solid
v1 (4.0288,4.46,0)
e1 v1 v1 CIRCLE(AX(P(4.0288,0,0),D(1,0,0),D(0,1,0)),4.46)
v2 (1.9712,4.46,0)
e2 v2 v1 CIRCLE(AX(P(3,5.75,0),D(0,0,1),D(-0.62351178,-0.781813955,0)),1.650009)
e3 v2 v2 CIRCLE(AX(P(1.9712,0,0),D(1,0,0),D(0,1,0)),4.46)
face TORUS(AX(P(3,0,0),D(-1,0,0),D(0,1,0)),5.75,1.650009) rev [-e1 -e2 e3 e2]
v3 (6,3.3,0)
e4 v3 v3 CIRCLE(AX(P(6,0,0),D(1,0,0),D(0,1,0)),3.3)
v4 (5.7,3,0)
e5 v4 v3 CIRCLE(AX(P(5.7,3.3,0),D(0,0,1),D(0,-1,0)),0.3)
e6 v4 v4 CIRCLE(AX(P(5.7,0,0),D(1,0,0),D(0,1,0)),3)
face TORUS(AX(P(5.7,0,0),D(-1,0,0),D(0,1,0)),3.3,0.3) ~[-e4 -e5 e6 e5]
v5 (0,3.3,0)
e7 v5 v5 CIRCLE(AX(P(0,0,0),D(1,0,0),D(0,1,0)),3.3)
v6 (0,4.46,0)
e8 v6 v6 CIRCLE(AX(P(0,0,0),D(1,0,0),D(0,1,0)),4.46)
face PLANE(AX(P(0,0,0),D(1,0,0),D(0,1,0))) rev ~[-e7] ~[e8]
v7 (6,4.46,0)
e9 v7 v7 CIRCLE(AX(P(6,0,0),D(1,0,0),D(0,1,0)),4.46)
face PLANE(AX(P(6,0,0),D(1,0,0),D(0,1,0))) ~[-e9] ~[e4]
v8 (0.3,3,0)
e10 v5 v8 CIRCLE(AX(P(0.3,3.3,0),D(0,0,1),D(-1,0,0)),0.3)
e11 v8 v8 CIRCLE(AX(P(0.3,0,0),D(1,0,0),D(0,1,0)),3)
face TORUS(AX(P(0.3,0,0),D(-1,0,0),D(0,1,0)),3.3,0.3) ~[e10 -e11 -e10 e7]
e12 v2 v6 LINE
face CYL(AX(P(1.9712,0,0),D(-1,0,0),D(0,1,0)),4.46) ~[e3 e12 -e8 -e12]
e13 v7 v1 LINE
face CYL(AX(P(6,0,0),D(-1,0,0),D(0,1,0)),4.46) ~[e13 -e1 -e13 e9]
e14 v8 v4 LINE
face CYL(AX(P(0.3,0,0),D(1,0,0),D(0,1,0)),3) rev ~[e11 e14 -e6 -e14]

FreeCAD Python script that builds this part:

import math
import FreeCAD as App
import Part
import Sketcher
Q = App.Units.Quantity

doc = App.newDocument("Part")
body = doc.addObject("PartDesign::Body", "Body")

# Sketch on XY plane
sketch1 = body.newObject("Sketcher::SketchObject", "Sketch")
sketch1.AttachmentSupport = (doc.getObject("XY_Plane"), [""])
sketch1.MapMode = "FlatFace"
sketch1.addGeometry([
    Part.LineSegment(App.Vector(0, 4.46, 0), App.Vector(0, 3.3, 0)),  # 0
    Part.ArcOfCircle(Part.Circle(App.Vector(0.3, 3.3, 0), App.Vector(0, 0, 1), 0.3), math.radians(180), math.radians(270)),  # 1
    Part.LineSegment(App.Vector(0.3, 3, 0), App.Vector(5.7, 3, 0)),  # 2
    Part.ArcOfCircle(Part.Circle(App.Vector(5.7, 3.3, 0), App.Vector(0, 0, 1), 0.3), math.radians(-90), math.radians(0)),  # 3
    Part.LineSegment(App.Vector(6, 3.3, 0), App.Vector(6, 4.46, 0)),  # 4
    Part.LineSegment(App.Vector(6, 4.46, 0), App.Vector(4.03, 4.46, 0)),  # 5
    Part.ArcOfCircle(Part.Circle(App.Vector(3, 5.75, 0), App.Vector(0, 0, 1), 1.65), math.radians(-129), math.radians(-51)),  # 6
    Part.LineSegment(App.Vector(1.97, 4.46, 0), App.Vector(0, 4.46, 0)),  # 7
], False)
sketch1.addConstraint([
    Sketcher.Constraint("Tangent", 0, 2, 1, 1),
    Sketcher.Constraint("Tangent", 1, 2, 2, 1),
    Sketcher.Constraint("Tangent", 2, 2, 3, 1),
    Sketcher.Constraint("Tangent", 3, 2, 4, 1),
    Sketcher.Constraint("Coincident", 4, 2, 5, 1),
    Sketcher.Constraint("Coincident", 5, 2, 6, 2),
    Sketcher.Constraint("Coincident", 6, 1, 7, 1),
    Sketcher.Constraint("Coincident", 7, 2, 0, 1),
    Sketcher.Constraint("Vertical", 0),
    Sketcher.Constraint("Horizontal", 2),
    Sketcher.Constraint("Vertical", 4),
    Sketcher.Constraint("Horizontal", 5),
    Sketcher.Constraint("Horizontal", 7),
    Sketcher.Constraint("Equal", 1, 3),
    Sketcher.Constraint("PointOnObject", 0, 2, -2),
    Sketcher.Constraint("Horizontal", 5, 2, 6, 1),
    Sketcher.Constraint("Equal", 5, 7),
    Sketcher.Constraint("Radius", 1, Q("0.3 mm")),
    Sketcher.Constraint("Radius", 6, Q("1.65 mm")),
    Sketcher.Constraint("DistanceX", 2, 1, 2, 2, Q("5.4 mm")),
    Sketcher.Constraint("DistanceY", -1, 1, 1, 2, Q("3 mm")),
    Sketcher.Constraint("DistanceY", 0, 2, 0, 1, Q("1.16 mm")),
    Sketcher.Constraint("DistanceY", -1, 1, 6, 3, Q("5.75 mm")),
])
revolution = body.newObject("PartDesign::Revolution", "Revolution")
revolution.Profile = sketch1
revolution.ReferenceAxis = (sketch1, ["H_Axis"])
revolution.Angle = 360

doc.recompute()
